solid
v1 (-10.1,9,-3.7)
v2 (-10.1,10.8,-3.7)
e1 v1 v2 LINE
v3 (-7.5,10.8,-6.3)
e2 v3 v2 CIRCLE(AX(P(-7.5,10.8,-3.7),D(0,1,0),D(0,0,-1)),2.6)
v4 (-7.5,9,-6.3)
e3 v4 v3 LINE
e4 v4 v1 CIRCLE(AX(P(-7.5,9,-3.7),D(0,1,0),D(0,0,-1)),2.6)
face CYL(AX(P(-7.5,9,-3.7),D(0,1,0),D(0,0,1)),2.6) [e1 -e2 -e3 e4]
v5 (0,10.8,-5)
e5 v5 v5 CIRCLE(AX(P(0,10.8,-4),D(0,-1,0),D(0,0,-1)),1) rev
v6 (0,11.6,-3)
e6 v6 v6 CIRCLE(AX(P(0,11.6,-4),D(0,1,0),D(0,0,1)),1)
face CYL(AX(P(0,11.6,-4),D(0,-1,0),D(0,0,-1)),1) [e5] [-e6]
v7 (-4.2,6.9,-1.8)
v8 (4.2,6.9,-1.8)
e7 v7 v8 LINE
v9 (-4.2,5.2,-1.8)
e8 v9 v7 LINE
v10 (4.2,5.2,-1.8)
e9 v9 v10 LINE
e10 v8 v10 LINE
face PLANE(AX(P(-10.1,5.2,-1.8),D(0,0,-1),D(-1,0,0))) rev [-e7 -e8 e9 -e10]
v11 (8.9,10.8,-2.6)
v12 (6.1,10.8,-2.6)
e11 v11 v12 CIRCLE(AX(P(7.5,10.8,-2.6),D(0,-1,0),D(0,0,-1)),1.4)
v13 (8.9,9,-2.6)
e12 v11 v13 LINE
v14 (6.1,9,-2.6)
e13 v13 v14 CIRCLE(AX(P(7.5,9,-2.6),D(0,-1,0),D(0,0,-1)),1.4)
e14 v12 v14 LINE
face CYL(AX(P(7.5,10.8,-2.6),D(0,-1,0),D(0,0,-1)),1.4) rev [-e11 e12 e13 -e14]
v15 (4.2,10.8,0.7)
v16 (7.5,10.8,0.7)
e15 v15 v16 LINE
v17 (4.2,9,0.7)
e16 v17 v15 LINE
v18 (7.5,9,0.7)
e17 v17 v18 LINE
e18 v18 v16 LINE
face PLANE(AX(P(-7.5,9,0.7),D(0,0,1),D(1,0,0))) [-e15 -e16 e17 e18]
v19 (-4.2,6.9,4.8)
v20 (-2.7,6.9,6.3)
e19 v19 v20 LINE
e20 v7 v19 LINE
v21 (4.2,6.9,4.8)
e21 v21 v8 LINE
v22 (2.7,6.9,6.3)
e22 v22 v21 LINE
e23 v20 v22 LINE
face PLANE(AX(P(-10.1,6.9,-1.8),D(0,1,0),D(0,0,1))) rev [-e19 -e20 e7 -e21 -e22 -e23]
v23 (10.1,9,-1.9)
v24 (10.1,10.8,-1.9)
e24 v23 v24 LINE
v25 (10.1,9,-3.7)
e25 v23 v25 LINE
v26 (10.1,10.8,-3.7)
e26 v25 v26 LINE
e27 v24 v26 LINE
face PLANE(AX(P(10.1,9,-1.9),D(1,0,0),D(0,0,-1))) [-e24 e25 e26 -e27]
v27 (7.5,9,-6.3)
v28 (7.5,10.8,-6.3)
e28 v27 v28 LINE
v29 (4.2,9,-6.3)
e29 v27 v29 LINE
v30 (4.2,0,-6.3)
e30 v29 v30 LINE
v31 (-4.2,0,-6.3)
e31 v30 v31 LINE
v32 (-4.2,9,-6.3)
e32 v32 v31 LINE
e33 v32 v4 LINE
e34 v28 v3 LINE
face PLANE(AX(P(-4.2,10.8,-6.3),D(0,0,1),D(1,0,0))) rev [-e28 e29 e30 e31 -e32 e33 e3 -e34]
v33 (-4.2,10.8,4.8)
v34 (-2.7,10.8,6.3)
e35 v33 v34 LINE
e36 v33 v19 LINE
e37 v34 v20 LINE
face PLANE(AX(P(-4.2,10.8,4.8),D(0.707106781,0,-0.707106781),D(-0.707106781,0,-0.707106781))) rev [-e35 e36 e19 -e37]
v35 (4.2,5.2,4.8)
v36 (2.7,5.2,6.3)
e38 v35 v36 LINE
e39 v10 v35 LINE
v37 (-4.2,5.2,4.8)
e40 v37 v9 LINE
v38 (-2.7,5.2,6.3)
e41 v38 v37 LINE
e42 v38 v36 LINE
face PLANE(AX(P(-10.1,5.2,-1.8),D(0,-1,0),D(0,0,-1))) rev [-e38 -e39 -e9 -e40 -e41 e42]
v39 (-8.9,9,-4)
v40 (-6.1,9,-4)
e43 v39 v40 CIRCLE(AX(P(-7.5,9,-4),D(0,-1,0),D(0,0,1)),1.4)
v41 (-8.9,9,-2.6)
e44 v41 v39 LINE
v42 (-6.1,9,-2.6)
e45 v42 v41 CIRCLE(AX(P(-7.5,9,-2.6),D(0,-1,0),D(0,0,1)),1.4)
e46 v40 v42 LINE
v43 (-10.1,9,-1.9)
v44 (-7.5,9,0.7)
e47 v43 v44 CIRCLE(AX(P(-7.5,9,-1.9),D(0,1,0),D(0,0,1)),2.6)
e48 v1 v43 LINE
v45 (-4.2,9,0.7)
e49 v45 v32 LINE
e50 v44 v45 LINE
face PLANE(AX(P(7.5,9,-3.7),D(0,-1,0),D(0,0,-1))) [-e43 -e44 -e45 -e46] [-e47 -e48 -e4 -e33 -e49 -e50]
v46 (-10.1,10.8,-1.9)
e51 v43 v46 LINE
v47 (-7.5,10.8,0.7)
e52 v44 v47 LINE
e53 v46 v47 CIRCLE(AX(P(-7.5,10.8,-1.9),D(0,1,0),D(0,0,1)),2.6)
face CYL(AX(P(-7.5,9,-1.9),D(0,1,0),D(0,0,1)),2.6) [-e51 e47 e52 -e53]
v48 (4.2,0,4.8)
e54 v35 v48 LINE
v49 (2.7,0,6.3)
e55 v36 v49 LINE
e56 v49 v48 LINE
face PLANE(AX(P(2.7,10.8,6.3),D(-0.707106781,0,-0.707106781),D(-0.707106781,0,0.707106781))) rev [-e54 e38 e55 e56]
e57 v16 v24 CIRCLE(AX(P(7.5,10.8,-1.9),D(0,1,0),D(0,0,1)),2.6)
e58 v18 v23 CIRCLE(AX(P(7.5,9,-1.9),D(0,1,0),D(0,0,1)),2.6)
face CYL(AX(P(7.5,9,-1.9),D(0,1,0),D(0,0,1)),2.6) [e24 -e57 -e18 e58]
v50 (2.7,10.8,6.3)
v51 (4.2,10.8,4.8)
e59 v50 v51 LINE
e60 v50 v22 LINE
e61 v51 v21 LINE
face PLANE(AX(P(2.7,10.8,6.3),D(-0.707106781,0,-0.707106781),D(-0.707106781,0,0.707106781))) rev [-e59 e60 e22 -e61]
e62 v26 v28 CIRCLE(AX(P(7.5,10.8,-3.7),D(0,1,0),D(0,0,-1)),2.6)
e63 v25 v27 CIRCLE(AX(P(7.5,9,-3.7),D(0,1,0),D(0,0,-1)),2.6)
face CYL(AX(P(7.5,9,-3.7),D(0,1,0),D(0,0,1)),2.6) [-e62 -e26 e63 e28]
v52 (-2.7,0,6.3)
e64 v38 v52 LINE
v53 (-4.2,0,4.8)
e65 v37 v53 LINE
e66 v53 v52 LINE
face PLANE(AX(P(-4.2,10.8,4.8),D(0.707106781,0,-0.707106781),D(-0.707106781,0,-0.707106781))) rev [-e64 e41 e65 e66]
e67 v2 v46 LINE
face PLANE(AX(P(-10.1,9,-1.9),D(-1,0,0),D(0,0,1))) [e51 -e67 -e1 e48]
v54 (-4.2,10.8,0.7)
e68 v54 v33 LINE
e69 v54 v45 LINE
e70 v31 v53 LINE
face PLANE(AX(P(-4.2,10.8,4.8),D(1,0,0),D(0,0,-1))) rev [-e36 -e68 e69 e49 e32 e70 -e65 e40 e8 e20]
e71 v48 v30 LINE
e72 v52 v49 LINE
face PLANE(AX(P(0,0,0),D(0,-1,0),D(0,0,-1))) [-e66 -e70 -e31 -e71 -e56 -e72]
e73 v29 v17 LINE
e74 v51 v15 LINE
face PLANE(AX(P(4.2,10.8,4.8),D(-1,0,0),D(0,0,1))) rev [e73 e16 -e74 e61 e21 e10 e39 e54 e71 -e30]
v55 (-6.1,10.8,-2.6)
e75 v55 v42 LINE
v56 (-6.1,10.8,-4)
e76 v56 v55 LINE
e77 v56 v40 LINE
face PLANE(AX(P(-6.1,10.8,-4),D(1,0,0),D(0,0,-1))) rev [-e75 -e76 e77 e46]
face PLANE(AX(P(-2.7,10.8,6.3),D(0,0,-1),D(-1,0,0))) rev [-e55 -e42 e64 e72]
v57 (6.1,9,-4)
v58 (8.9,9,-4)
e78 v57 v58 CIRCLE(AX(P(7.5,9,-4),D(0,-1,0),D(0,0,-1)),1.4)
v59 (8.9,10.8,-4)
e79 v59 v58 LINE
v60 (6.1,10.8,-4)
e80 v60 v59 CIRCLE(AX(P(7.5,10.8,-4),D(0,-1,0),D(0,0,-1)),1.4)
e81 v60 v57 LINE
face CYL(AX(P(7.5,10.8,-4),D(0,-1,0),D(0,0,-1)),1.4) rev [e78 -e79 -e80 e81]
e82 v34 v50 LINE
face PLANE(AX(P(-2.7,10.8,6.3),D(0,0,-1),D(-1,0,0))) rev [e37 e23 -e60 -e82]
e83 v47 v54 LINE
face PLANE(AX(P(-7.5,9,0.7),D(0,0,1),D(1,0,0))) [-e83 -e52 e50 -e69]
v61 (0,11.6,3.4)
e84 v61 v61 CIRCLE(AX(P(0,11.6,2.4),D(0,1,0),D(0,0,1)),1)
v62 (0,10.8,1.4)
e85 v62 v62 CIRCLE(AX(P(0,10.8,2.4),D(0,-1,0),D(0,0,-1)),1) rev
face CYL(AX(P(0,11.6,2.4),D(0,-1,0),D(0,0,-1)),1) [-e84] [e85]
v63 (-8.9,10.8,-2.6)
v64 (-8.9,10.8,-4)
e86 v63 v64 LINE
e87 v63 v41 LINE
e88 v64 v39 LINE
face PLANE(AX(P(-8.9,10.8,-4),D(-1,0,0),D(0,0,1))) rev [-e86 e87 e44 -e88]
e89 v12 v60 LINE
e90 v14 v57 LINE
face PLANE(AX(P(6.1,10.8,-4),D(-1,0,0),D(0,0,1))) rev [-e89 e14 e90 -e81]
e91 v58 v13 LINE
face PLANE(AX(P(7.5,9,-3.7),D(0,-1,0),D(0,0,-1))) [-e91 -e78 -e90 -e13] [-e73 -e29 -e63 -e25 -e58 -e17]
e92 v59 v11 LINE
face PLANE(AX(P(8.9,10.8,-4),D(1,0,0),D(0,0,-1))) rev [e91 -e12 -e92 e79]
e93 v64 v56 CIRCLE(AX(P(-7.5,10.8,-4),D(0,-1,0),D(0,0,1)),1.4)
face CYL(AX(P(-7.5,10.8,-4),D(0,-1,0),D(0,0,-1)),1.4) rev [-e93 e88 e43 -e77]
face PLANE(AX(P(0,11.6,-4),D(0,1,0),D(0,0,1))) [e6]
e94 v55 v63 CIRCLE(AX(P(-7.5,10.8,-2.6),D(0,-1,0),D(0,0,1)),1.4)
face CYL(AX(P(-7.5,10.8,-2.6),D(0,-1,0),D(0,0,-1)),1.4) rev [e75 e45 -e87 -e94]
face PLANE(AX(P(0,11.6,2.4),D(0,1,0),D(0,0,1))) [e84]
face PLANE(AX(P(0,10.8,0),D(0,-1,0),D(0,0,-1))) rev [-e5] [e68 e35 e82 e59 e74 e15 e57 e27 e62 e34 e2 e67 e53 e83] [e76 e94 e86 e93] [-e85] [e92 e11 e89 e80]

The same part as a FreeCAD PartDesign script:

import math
import FreeCAD as App
import Part
import Sketcher

V = App.Vector
Q = App.Units.Quantity


def add_polygon(sketch, points):
    """Adds a closed chain of lines whose ends are joined by coincident constraints."""
    first, n = sketch.GeometryCount, len(points)
    for a, b in zip(points, points[1:] + points[:1]):
        sketch.addGeometry(Part.LineSegment(App.Vector(*a, 0), App.Vector(*b, 0)), False)
    for i in range(n):
        sketch.addConstraint(Sketcher.Constraint("Coincident", first + i, 2, first + (i + 1) % n, 1))

doc = App.newDocument("Part")
body = doc.addObject("PartDesign::Body", "Body")

sketch1 = body.newObject("Sketcher::SketchObject", "Sketch")
sketch1.AttachmentSupport = (doc.getObject("XZ_Plane"), [""])
sketch1.MapMode = "FlatFace"
add_polygon(sketch1, [(2.7, 6.3), (4.2, 4.8), (4.2, -6.3), (-4.2, -6.3), (-4.2, 4.8), (-2.7, 6.3)])
sketch1.addConstraint(Sketcher.Constraint("Vertical", 1))
sketch1.addConstraint(Sketcher.Constraint("Horizontal", 2))
sketch1.addConstraint(Sketcher.Constraint("Vertical", 3))
sketch1.addConstraint(Sketcher.Constraint("Horizontal", 5))
sketch1.addConstraint(Sketcher.Constraint("Symmetric", 0, 2, 3, 2, -2))
sketch1.addConstraint(Sketcher.Constraint("Perpendicular", 0, 4))
sketch1.addConstraint(Sketcher.Constraint("Equal", 0, 4))
sketch1.addConstraint(Sketcher.Constraint("DistanceX", 2, 2, 2, 1, Q("8.4 mm")))
sketch1.addConstraint(Sketcher.Constraint("DistanceX", 5, 1, 5, 2, Q("5.4 mm")))
sketch1.addConstraint(Sketcher.Constraint("DistanceY", 1, 2, 1, 1, Q("11.1 mm")))
sketch1.addConstraint(Sketcher.Constraint("DistanceY", -1, 1, 0, 2, Q("4.8 mm")))
pad1 = body.newObject("PartDesign::Pad", "Pad")
pad1.Profile = sketch1
pad1.Length = 10.8
pad1.Reversed = True

sketch2 = body.newObject("Sketcher::SketchObject", "Sketch001")
sketch2.AttachmentSupport = (doc.getObject("XZ_Plane"), [""])
sketch2.MapMode = "FlatFace"
sketch2.AttachmentOffset = App.Placement(V(0, 0, -10.8), App.Rotation())
sketch2.addGeometry(Part.LineSegment(V(-7.5, 0.7, 0), V(7.5, 0.7, 0)), False)
sketch2.addGeometry(Part.ArcOfCircle(Part.Circle(V(7.5, -1.9, 0), V(0, 0, 1), 2.6), math.radians(0), math.radians(90)), False)
sketch2.addGeometry(Part.LineSegment(V(10.1, -1.9, 0), V(10.1, -3.7, 0)), False)
sketch2.addGeometry(Part.ArcOfCircle(Part.Circle(V(7.5, -3.7, 0), V(0, 0, 1), 2.6), math.radians(-90), math.radians(0)), False)
sketch2.addGeometry(Part.LineSegment(V(7.5, -6.3, 0), V(-7.5, -6.3, 0)), False)
sketch2.addGeometry(Part.ArcOfCircle(Part.Circle(V(-7.5, -3.7, 0), V(0, 0, 1), 2.6), math.radians(180), math.radians(270)), False)
sketch2.addGeometry(Part.LineSegment(V(-10.1, -3.7, 0), V(-10.1, -1.9, 0)), False)
sketch2.addGeometry(Part.ArcOfCircle(Part.Circle(V(-7.5, -1.9, 0), V(0, 0, 1), 2.6), math.radians(90), math.radians(180)), False)
sketch2.addConstraint(Sketcher.Constraint("Tangent", 0, 2, 1, 2))
sketch2.addConstraint(Sketcher.Constraint("Tangent", 1, 1, 2, 1))
sketch2.addConstraint(Sketcher.Constraint("Tangent", 2, 2, 3, 2))
sketch2.addConstraint(Sketcher.Constraint("Tangent", 3, 1, 4, 1))
sketch2.addConstraint(Sketcher.Constraint("Tangent", 4, 2, 5, 2))
sketch2.addConstraint(Sketcher.Constraint("Tangent", 5, 1, 6, 1))
sketch2.addConstraint(Sketcher.Constraint("Tangent", 6, 2, 7, 2))
sketch2.addConstraint(Sketcher.Constraint("Tangent", 7, 1, 0, 1))
sketch2.addConstraint(Sketcher.Constraint("Horizontal", 0))
sketch2.addConstraint(Sketcher.Constraint("Vertical", 2))
sketch2.addConstraint(Sketcher.Constraint("Horizontal", 4))
sketch2.addConstraint(Sketcher.Constraint("Vertical", 6))
sketch2.addConstraint(Sketcher.Constraint("Equal", 1, 3))
sketch2.addConstraint(Sketcher.Constraint("Equal", 3, 5))
sketch2.addConstraint(Sketcher.Constraint("Equal", 5, 7))
sketch2.addConstraint(Sketcher.Constraint("Radius", 1, Q("2.6 mm")))
sketch2.addConstraint(Sketcher.Constraint("DistanceX", 0, 1, 0, 2, Q("15 mm")))
sketch2.addConstraint(Sketcher.Constraint("DistanceY", 2, 2, 2, 1, Q("1.8 mm")))
sketch2.addConstraint(Sketcher.Constraint("DistanceX", -1, 1, 1, 3, Q("7.5 mm")))
sketch2.addConstraint(Sketcher.Constraint("DistanceY", 1, 3, -1, 1, Q("1.9 mm")))
pad2 = body.newObject("PartDesign::Pad", "Pad001")
pad2.Profile = sketch2
pad2.Length = 1.8

sketch3 = body.newObject("Sketcher::SketchObject", "Sketch002")
sketch3.AttachmentSupport = (doc.getObject("XZ_Plane"), [""])
sketch3.MapMode = "FlatFace"
sketch3.AttachmentOffset = App.Placement(V(0, 0, -9), App.Rotation())
sketch3.addGeometry(Part.LineSegment(V(6.1, -2.6, 0), V(6.1, -4, 0)), False)
sketch3.addGeometry(Part.ArcOfCircle(Part.Circle(V(7.5, -4, 0), V(0, 0, 1), 1.4), math.radians(180), math.radians(360)), False)
sketch3.addGeometry(Part.LineSegment(V(8.9, -4, 0), V(8.9, -2.6, 0)), False)
sketch3.addGeometry(Part.ArcOfCircle(Part.Circle(V(7.5, -2.6, 0), V(0, 0, 1), 1.4), math.radians(0), math.radians(180)), False)
sketch3.addGeometry(Part.LineSegment(V(-6.1, -4, 0), V(-6.1, -2.6, 0)), False)
sketch3.addGeometry(Part.ArcOfCircle(Part.Circle(V(-7.5, -2.6, 0), V(0, 0, 1), 1.4), math.radians(0), math.radians(180)), False)
sketch3.addGeometry(Part.LineSegment(V(-8.9, -2.6, 0), V(-8.9, -4, 0)), False)
sketch3.addGeometry(Part.ArcOfCircle(Part.Circle(V(-7.5, -4, 0), V(0, 0, 1), 1.4), math.radians(180), math.radians(360)), False)
sketch3.addConstraint(Sketcher.Constraint("Tangent", 0, 2, 1, 1))
sketch3.addConstraint(Sketcher.Constraint("Tangent", 1, 2, 2, 1))
sketch3.addConstraint(Sketcher.Constraint("Tangent", 2, 2, 3, 1))
sketch3.addConstraint(Sketcher.Constraint("Tangent", 3, 2, 0, 1))
sketch3.addConstraint(Sketcher.Constraint("Tangent", 4, 2, 5, 1))
sketch3.addConstraint(Sketcher.Constraint("Tangent", 5, 2, 6, 1))
sketch3.addConstraint(Sketcher.Constraint("Tangent", 6, 2, 7, 1))
sketch3.addConstraint(Sketcher.Constraint("Tangent", 7, 2, 4, 1))
sketch3.addConstraint(Sketcher.Constraint("Vertical", 0))
sketch3.addConstraint(Sketcher.Constraint("Vertical", 2))
sketch3.addConstraint(Sketcher.Constraint("Vertical", 4))
sketch3.addConstraint(Sketcher.Constraint("Vertical", 6))
sketch3.addConstraint(Sketcher.Constraint("Equal", 3, 5))
sketch3.addConstraint(Sketcher.Constraint("Symmetric", 3, 3, 5, 3, -2))
sketch3.addConstraint(Sketcher.Constraint("Horizontal", 1, 3, 7, 3))
sketch3.addConstraint(Sketcher.Constraint("Radius", 1, Q("1.4 mm")))
sketch3.addConstraint(Sketcher.Constraint("DistanceY", 0, 2, 0, 1, Q("1.4 mm")))
sketch3.addConstraint(Sketcher.Constraint("DistanceY", 1, 3, -1, 1, Q("4 mm")))
sketch3.addConstraint(Sketcher.Constraint("DistanceX", 5, 3, 3, 3, Q("15 mm")))
pocket1 = body.newObject("PartDesign::Pocket", "Pocket")
pocket1.Profile = sketch3
pocket1.Type = "ThroughAll"

sketch4 = body.newObject("Sketcher::SketchObject", "Sketch003")
sketch4.AttachmentSupport = (doc.getObject("YZ_Plane"), [""])
sketch4.MapMode = "FlatFace"
sketch4.AttachmentOffset = App.Placement(V(0, 0, 4.2), App.Rotation())
add_polygon(sketch4, [(6.9, 6.3), (5.2, 6.3), (5.2, -1.8), (6.9, -1.8)])
sketch4.addConstraint(Sketcher.Constraint("Horizontal", 0))
sketch4.addConstraint(Sketcher.Constraint("Vertical", 1))
sketch4.addConstraint(Sketcher.Constraint("Horizontal", 2))
sketch4.addConstraint(Sketcher.Constraint("Vertical", 3))
sketch4.addConstraint(Sketcher.Constraint("DistanceX", 0, 2, 0, 1, Q("1.7 mm")))
sketch4.addConstraint(Sketcher.Constraint("DistanceY", 1, 2, 1, 1, Q("8.1 mm")))
sketch4.addConstraint(Sketcher.Constraint("DistanceX", -1, 1, 0, 2, Q("5.2 mm")))
sketch4.addConstraint(Sketcher.Constraint("DistanceY", -1, 1, 0, 2, Q("6.3 mm")))
pocket2 = body.newObject("PartDesign::Pocket", "Pocket001")
pocket2.Profile = sketch4
pocket2.Type = "ThroughAll"
pocket2.Midplane = True

sketch5 = body.newObject("Sketcher::SketchObject", "Sketch004")
sketch5.AttachmentSupport = (doc.getObject("XZ_Plane"), [""])
sketch5.MapMode = "FlatFace"
sketch5.AttachmentOffset = App.Placement(V(0, 0, -10.8), App.Rotation())
sketch5.addGeometry(Part.Circle(V(0, 2.4, 0), V(0, 0, 1), 1), False)
sketch5.addGeometry(Part.Circle(V(0, -4, 0), V(0, 0, 1), 1), False)
sketch5.addConstraint(Sketcher.Constraint("Equal", 0, 1))
sketch5.addConstraint(Sketcher.Constraint("PointOnObject", 0, 3, -2))
sketch5.addConstraint(Sketcher.Constraint("PointOnObject", 1, 3, -2))
sketch5.addConstraint(Sketcher.Constraint("Diameter", 0, Q("2 mm")))
sketch5.addConstraint(Sketcher.Constraint("DistanceY", 1, 3, -1, 1, Q("4 mm")))
sketch5.addConstraint(Sketcher.Constraint("DistanceY", -1, 1, 0, 3, Q("2.4 mm")))
pad3 = body.newObject("PartDesign::Pad", "Pad002")
pad3.Profile = sketch5
pad3.Length = 0.8
pad3.Reversed = True

doc.recompute()
